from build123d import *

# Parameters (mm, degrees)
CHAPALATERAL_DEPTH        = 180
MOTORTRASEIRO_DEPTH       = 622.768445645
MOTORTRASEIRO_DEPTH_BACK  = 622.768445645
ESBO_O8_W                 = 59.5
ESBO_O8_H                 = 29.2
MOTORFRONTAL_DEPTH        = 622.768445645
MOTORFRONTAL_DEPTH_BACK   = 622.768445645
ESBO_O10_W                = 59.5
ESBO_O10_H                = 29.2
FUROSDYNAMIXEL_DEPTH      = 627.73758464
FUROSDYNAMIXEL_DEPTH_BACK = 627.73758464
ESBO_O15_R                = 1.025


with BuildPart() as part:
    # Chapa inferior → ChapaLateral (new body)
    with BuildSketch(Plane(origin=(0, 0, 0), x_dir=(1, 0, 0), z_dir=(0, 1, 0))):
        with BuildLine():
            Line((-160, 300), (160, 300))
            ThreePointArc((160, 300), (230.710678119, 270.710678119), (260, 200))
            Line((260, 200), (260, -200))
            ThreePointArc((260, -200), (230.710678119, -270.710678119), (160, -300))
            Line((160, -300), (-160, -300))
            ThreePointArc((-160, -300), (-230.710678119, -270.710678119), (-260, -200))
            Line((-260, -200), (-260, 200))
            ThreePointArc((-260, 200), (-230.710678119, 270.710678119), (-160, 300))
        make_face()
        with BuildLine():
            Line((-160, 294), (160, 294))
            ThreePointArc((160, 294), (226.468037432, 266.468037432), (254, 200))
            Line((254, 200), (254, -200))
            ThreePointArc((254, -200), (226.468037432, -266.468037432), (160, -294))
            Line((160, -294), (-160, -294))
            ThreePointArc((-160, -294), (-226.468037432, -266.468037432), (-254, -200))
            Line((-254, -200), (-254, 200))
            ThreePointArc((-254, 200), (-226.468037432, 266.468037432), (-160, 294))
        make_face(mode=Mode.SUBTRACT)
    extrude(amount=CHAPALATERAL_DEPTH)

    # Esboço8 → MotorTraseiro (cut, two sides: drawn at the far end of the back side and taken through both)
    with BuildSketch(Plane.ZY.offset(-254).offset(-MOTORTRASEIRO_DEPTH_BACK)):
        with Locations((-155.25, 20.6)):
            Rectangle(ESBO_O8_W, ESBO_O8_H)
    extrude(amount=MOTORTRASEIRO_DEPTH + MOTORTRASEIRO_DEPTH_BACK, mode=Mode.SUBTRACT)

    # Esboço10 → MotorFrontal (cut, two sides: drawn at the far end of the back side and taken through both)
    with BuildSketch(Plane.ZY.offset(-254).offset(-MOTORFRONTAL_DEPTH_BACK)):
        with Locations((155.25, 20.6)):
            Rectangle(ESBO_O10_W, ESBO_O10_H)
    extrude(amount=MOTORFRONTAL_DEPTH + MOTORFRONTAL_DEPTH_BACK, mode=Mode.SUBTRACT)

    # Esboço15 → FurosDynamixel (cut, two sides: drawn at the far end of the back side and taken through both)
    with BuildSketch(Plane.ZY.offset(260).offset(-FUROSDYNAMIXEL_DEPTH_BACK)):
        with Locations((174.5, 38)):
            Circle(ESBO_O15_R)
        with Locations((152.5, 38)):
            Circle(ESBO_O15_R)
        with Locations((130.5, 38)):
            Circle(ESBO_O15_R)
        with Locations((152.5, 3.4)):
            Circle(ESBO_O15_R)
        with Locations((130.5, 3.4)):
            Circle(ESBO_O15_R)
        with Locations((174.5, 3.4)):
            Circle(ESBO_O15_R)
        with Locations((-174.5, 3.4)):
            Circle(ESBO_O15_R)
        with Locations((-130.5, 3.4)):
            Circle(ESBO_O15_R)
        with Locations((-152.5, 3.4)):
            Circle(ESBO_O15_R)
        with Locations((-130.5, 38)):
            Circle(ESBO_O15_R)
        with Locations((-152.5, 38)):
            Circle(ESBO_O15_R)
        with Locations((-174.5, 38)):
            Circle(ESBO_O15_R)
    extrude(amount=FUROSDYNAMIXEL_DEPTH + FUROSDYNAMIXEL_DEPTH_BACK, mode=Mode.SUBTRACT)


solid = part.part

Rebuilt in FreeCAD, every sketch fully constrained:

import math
import FreeCAD as App
import Part
import Sketcher
Q = App.Units.Quantity


def add_polygon(sketch, points):
    """Adds a closed chain of lines whose ends are joined by coincident constraints."""
    first, n = sketch.GeometryCount, len(points)
    for a, b in zip(points, points[1:] + points[:1]):
        sketch.addGeometry(Part.LineSegment(App.Vector(*a, 0), App.Vector(*b, 0)), False)
    for i in range(n):
        sketch.addConstraint(Sketcher.Constraint("Coincident", first + i, 2, first + (i + 1) % n, 1))

doc = App.newDocument("Part")
params = doc.addObject("Spreadsheet::Sheet", "Params")
for row, (alias, value) in enumerate([
    ("sketch1_radius", "100 mm"),
    ("sketch1_radius2", "94 mm"),
    ("sketch1_width", "320 mm"),
    ("sketch1_height", "400 mm"),
    ("pad1_length", "180 mm"),
    ("sketch2_width", "29.2 mm"),
    ("sketch2_height", "59.5 mm"),
    ("sketch3_width", "29.2 mm"),
    ("sketch3_height", "59.5 mm"),
    ("sketch4_diameter", "2.05 mm"),
], start=1):
    params.set(f"A{row}", alias)
    params.set(f"B{row}", "=" + value)
    params.setAlias(f"B{row}", alias)

body = doc.addObject("PartDesign::Body", "Body")

sketch1 = body.newObject("Sketcher::SketchObject", "Sketch")
sketch1.AttachmentSupport = (doc.getObject("XZ_Plane"), [""])
sketch1.MapMode = "FlatFace"
sketch1.addGeometry(Part.LineSegment(App.Vector(160, -300, 0), App.Vector(-160, -300, 0)), False)
sketch1.addGeometry(Part.ArcOfCircle(Part.Circle(App.Vector(-160, -200, 0), App.Vector(0, 0, 1), 100), math.radians(180), math.radians(270)), False)
sketch1.addGeometry(Part.LineSegment(App.Vector(-260, -200, 0), App.Vector(-260, 200, 0)), False)
sketch1.addGeometry(Part.ArcOfCircle(Part.Circle(App.Vector(-160, 200, 0), App.Vector(0, 0, 1), 100), math.radians(90), math.radians(180)), False)
sketch1.addGeometry(Part.LineSegment(App.Vector(-160, 300, 0), App.Vector(160, 300, 0)), False)
sketch1.addGeometry(Part.ArcOfCircle(Part.Circle(App.Vector(160, 200, 0), App.Vector(0, 0, 1), 100), math.radians(0), math.radians(90)), False)
sketch1.addGeometry(Part.LineSegment(App.Vector(260, 200, 0), App.Vector(260, -200, 0)), False)
sketch1.addGeometry(Part.ArcOfCircle(Part.Circle(App.Vector(160, -200, 0), App.Vector(0, 0, 1), 100), math.radians(-90), math.radians(0)), False)
sketch1.addGeometry(Part.LineSegment(App.Vector(-160, -294, 0), App.Vector(160, -294, 0)), False)
sketch1.addGeometry(Part.ArcOfCircle(Part.Circle(App.Vector(160, -200, 0), App.Vector(0, 0, 1), 94), math.radians(-90), math.radians(0)), False)
sketch1.addGeometry(Part.LineSegment(App.Vector(254, -200, 0), App.Vector(254, 200, 0)), False)
sketch1.addGeometry(Part.ArcOfCircle(Part.Circle(App.Vector(160, 200, 0), App.Vector(0, 0, 1), 94), math.radians(0), math.radians(90)), False)
sketch1.addGeometry(Part.LineSegment(App.Vector(160, 294, 0), App.Vector(-160, 294, 0)), False)
sketch1.addGeometry(Part.ArcOfCircle(Part.Circle(App.Vector(-160, 200, 0), App.Vector(0, 0, 1), 94), math.radians(90), math.radians(180)), False)
sketch1.addGeometry(Part.LineSegment(App.Vector(-254, 200, 0), App.Vector(-254, -200, 0)), False)
sketch1.addGeometry(Part.ArcOfCircle(Part.Circle(App.Vector(-160, -200, 0), App.Vector(0, 0, 1), 94), math.radians(180), math.radians(270)), False)
sketch1.addConstraint(Sketcher.Constraint("Tangent", 0, 2, 1, 2))
sketch1.addConstraint(Sketcher.Constraint("Tangent", 1, 1, 2, 1))
sketch1.addConstraint(Sketcher.Constraint("Tangent", 2, 2, 3, 2))
sketch1.addConstraint(Sketcher.Constraint("Tangent", 3, 1, 4, 1))
sketch1.addConstraint(Sketcher.Constraint("Tangent", 4, 2, 5, 2))
sketch1.addConstraint(Sketcher.Constraint("Tangent", 5, 1, 6, 1))
sketch1.addConstraint(Sketcher.Constraint("Tangent", 6, 2, 7, 2))
sketch1.addConstraint(Sketcher.Constraint("Tangent", 7, 1, 0, 1))
sketch1.addConstraint(Sketcher.Constraint("Tangent", 8, 2, 9, 1))
sketch1.addConstraint(Sketcher.Constraint("Tangent", 9, 2, 10, 1))
sketch1.addConstraint(Sketcher.Constraint("Tangent", 10, 2, 11, 1))
sketch1.addConstraint(Sketcher.Constraint("Tangent", 11, 2, 12, 1))
sketch1.addConstraint(Sketcher.Constraint("Tangent", 12, 2, 13, 1))
sketch1.addConstraint(Sketcher.Constraint("Tangent", 13, 2, 14, 1))
sketch1.addConstraint(Sketcher.Constraint("Tangent", 14, 2, 15, 1))
sketch1.addConstraint(Sketcher.Constraint("Tangent", 15, 2, 8, 1))
sketch1.addConstraint(Sketcher.Constraint("Horizontal", 0))
sketch1.addConstraint(Sketcher.Constraint("Vertical", 2))
sketch1.addConstraint(Sketcher.Constraint("Horizontal", 4))
sketch1.addConstraint(Sketcher.Constraint("Vertical", 6))
sketch1.addConstraint(Sketcher.Constraint("Horizontal", 8))
sketch1.addConstraint(Sketcher.Constraint("Vertical", 10))
sketch1.addConstraint(Sketcher.Constraint("Horizontal", 12))
sketch1.addConstraint(Sketcher.Constraint("Vertical", 14))
sketch1.addConstraint(Sketcher.Constraint("Coincident", 9, 3, 7, 3))
sketch1.addConstraint(Sketcher.Constraint("Coincident", 11, 3, 5, 3))
sketch1.addConstraint(Sketcher.Constraint("Coincident", 13, 3, 3, 3))
sketch1.addConstraint(Sketcher.Constraint("Equal", 1, 3))
sketch1.addConstraint(Sketcher.Constraint("Equal", 3, 5))
sketch1.addConstraint(Sketcher.Constraint("Equal", 5, 7))
sketch1.addConstraint(Sketcher.Constraint("Equal", 13, 15))
sketch1.addConstraint(Sketcher.Constraint("Symmetric", 1, 3, 5, 3, -1, 1))
sketch1.addConstraint(Sketcher.Constraint("Radius", 1, Q("100 mm")))
sketch1.addConstraint(Sketcher.Constraint("Radius", 9, Q("94 mm")))
sketch1.addConstraint(Sketcher.Constraint("DistanceX", 0, 2, 0, 1, Q("320 mm")))
sketch1.addConstraint(Sketcher.Constraint("DistanceY", 2, 1, 2, 2, Q("400 mm")))
sketch1.setExpression("Constraints[32]", "Params.sketch1_radius")
sketch1.setExpression("Constraints[33]", "Params.sketch1_radius2")
sketch1.setExpression("Constraints[34]", "Params.sketch1_width")
sketch1.setExpression("Constraints[35]", "Params.sketch1_height")
pad1 = body.newObject("PartDesign::Pad", "Pad")
pad1.Profile = sketch1
pad1.setExpression("Length", "Params.pad1_length")
pad1.Reversed = True

sketch2 = body.newObject("Sketcher::SketchObject", "Sketch001")
sketch2.AttachmentSupport = (doc.getObject("YZ_Plane"), [""])
sketch2.MapMode = "FlatFace"
sketch2.AttachmentOffset = App.Placement(App.Vector(0, 0, 254), App.Rotation())
add_polygon(sketch2, [(35, -185), (6, -185), (6, -126), (35, -126)])
sketch2.addConstraint(Sketcher.Constraint("Horizontal", 0))
sketch2.addConstraint(Sketcher.Constraint("Vertical", 1))
sketch2.addConstraint(Sketcher.Constraint("Horizontal", 2))
sketch2.addConstraint(Sketcher.Constraint("Vertical", 3))
sketch2.addConstraint(Sketcher.Constraint("DistanceX", 0, 2, 0, 1, Q("29.2 mm")))
sketch2.addConstraint(Sketcher.Constraint("DistanceY", 1, 1, 1, 2, Q("59.5 mm")))
sketch2.addConstraint(Sketcher.Constraint("DistanceX", -1, 1, 0, 2, Q("6 mm")))
sketch2.addConstraint(Sketcher.Constraint("DistanceY", 0, 2, -1, 1, Q("185 mm")))
sketch2.setExpression("Constraints[8]", "Params.sketch2_width")
sketch2.setExpression("Constraints[9]", "Params.sketch2_height")
pocket1 = body.newObject("PartDesign::Pocket", "Pocket")
pocket1.Profile = sketch2
pocket1.Type = "ThroughAll"
pocket1.Midplane = True

sketch3 = body.newObject("Sketcher::SketchObject", "Sketch002")
sketch3.AttachmentSupport = (doc.getObject("YZ_Plane"), [""])
sketch3.MapMode = "FlatFace"
sketch3.AttachmentOffset = App.Placement(App.Vector(0, 0, 254), App.Rotation())
add_polygon(sketch3, [(35, 126), (6, 126), (6, 185), (35, 185)])
sketch3.addConstraint(Sketcher.Constraint("Horizontal", 0))
sketch3.addConstraint(Sketcher.Constraint("Vertical", 1))
sketch3.addConstraint(Sketcher.Constraint("Horizontal", 2))
sketch3.addConstraint(Sketcher.Constraint("Vertical", 3))
sketch3.addConstraint(Sketcher.Constraint("DistanceX", 0, 2, 0, 1, Q("29.2 mm")))
sketch3.addConstraint(Sketcher.Constraint("DistanceY", 1, 1, 1, 2, Q("59.5 mm")))
sketch3.addConstraint(Sketcher.Constraint("DistanceX", -1, 1, 0, 2, Q("6 mm")))
sketch3.addConstraint(Sketcher.Constraint("DistanceY", -1, 1, 1, 2, Q("185 mm")))
sketch3.setExpression("Constraints[8]", "Params.sketch3_width")
sketch3.setExpression("Constraints[9]", "Params.sketch3_height")
pocket2 = body.newObject("PartDesign::Pocket", "Pocket001")
pocket2.Profile = sketch3
pocket2.Type = "ThroughAll"
pocket2.Midplane = True

sketch4 = body.newObject("Sketcher::SketchObject", "Sketch003")
sketch4.AttachmentSupport = (doc.getObject("YZ_Plane"), [""])
sketch4.MapMode = "FlatFace"
sketch4.AttachmentOffset = App.Placement(App.Vector(0, 0, -260), App.Rotation())
sketch4.addGeometry(Part.Circle(App.Vector(38, 174.5, 0), App.Vector(0, 0, 1), 1), False)
sketch4.addGeometry(Part.Circle(App.Vector(38, 152.5, 0), App.Vector(0, 0, 1), 1), False)
sketch4.addGeometry(Part.Circle(App.Vector(38, 130.5, 0), App.Vector(0, 0, 1), 1), False)
sketch4.addGeometry(Part.Circle(App.Vector(3.4, 152.5, 0), App.Vector(0, 0, 1), 1), False)
sketch4.addGeometry(Part.Circle(App.Vector(3.4, 130.5, 0), App.Vector(0, 0, 1), 1), False)
sketch4.addGeometry(Part.Circle(App.Vector(3.4, 174.5, 0), App.Vector(0, 0, 1), 1), False)
sketch4.addGeometry(Part.Circle(App.Vector(3.4, -174.5, 0), App.Vector(0, 0, 1), 1), False)
sketch4.addGeometry(Part.Circle(App.Vector(3.4, -130.5, 0), App.Vector(0, 0, 1), 1), False)
sketch4.addGeometry(Part.Circle(App.Vector(3.4, -152.5, 0), App.Vector(0, 0, 1), 1), False)
sketch4.addGeometry(Part.Circle(App.Vector(38, -130.5, 0), App.Vector(0, 0, 1), 1), False)
sketch4.addGeometry(Part.Circle(App.Vector(38, -152.5, 0), App.Vector(0, 0, 1), 1), False)
sketch4.addGeometry(Part.Circle(App.Vector(38, -174.5, 0), App.Vector(0, 0, 1), 1), False)
sketch4.addConstraint(Sketcher.Constraint("Equal", 0, 1))
sketch4.addConstraint(Sketcher.Constraint("Equal", 1, 2))
sketch4.addConstraint(Sketcher.Constraint("Equal", 2, 3))
sketch4.addConstraint(Sketcher.Constraint("Equal", 3, 4))
sketch4.addConstraint(Sketcher.Constraint("Equal", 4, 5))
sketch4.addConstraint(Sketcher.Constraint("Equal", 5, 6))
sketch4.addConstraint(Sketcher.Constraint("Equal", 6, 7))
sketch4.addConstraint(Sketcher.Constraint("Equal", 7, 8))
sketch4.addConstraint(Sketcher.Constraint("Equal", 8, 9))
sketch4.addConstraint(Sketcher.Constraint("Equal", 9, 10))
sketch4.addConstraint(Sketcher.Constraint("Equal", 10, 11))
sketch4.addConstraint(Sketcher.Constraint("Symmetric", 5, 3, 6, 3, -1))
sketch4.addConstraint(Sketcher.Constraint("Symmetric", 4, 3, 7, 3, -1))
sketch4.addConstraint(Sketcher.Constraint("Symmetric", 3, 3, 8, 3, -1))
sketch4.addConstraint(Sketcher.Constraint("Symmetric", 2, 3, 9, 3, -1))
sketch4.addConstraint(Sketcher.Constraint("Symmetric", 1, 3, 10, 3, -1))
sketch4.addConstraint(Sketcher.Constraint("Symmetric", 0, 3, 11, 3, -1))
sketch4.addConstraint(Sketcher.Constraint("Horizontal", 1, 3, 3, 3))
sketch4.addConstraint(Sketcher.Constraint("Horizontal", 2, 3, 4, 3))
sketch4.addConstraint(Sketcher.Constraint("Horizontal", 0, 3, 5, 3))
sketch4.addConstraint(Sketcher.Constraint("Vertical", 0, 3, 1, 3))
sketch4.addConstraint(Sketcher.Constraint("Vertical", 1, 3, 2, 3))
sketch4.addConstraint(Sketcher.Constraint("Vertical", 3, 3, 4, 3))
sketch4.addConstraint(Sketcher.Constraint("Vertical", 4, 3, 5, 3))
sketch4.addConstraint(Sketcher.Constraint("Diameter", 0, Q("2.05 mm")))
sketch4.addConstraint(Sketcher.Constraint("DistanceX", -1, 1, 0, 3, Q("38 mm")))
sketch4.addConstraint(Sketcher.Constraint("DistanceY", 1, 3, 0, 3, Q("22 mm")))
sketch4.addConstraint(Sketcher.Constraint("DistanceY", 2, 3, 1, 3, Q("22 mm")))
sketch4.addConstraint(Sketcher.Constraint("DistanceY", 6, 3, 4, 3, Q("305 mm")))
sketch4.addConstraint(Sketcher.Constraint("DistanceX", -1, 1, 3, 3, Q("3.4 mm")))
sketch4.setExpression("Constraints[24]", "Params.sketch4_diameter")
pocket3 = body.newObject("PartDesign::Pocket", "Pocket002")
pocket3.Profile = sketch4
pocket3.Type = "ThroughAll"
pocket3.Midplane = True

doc.recompute()
